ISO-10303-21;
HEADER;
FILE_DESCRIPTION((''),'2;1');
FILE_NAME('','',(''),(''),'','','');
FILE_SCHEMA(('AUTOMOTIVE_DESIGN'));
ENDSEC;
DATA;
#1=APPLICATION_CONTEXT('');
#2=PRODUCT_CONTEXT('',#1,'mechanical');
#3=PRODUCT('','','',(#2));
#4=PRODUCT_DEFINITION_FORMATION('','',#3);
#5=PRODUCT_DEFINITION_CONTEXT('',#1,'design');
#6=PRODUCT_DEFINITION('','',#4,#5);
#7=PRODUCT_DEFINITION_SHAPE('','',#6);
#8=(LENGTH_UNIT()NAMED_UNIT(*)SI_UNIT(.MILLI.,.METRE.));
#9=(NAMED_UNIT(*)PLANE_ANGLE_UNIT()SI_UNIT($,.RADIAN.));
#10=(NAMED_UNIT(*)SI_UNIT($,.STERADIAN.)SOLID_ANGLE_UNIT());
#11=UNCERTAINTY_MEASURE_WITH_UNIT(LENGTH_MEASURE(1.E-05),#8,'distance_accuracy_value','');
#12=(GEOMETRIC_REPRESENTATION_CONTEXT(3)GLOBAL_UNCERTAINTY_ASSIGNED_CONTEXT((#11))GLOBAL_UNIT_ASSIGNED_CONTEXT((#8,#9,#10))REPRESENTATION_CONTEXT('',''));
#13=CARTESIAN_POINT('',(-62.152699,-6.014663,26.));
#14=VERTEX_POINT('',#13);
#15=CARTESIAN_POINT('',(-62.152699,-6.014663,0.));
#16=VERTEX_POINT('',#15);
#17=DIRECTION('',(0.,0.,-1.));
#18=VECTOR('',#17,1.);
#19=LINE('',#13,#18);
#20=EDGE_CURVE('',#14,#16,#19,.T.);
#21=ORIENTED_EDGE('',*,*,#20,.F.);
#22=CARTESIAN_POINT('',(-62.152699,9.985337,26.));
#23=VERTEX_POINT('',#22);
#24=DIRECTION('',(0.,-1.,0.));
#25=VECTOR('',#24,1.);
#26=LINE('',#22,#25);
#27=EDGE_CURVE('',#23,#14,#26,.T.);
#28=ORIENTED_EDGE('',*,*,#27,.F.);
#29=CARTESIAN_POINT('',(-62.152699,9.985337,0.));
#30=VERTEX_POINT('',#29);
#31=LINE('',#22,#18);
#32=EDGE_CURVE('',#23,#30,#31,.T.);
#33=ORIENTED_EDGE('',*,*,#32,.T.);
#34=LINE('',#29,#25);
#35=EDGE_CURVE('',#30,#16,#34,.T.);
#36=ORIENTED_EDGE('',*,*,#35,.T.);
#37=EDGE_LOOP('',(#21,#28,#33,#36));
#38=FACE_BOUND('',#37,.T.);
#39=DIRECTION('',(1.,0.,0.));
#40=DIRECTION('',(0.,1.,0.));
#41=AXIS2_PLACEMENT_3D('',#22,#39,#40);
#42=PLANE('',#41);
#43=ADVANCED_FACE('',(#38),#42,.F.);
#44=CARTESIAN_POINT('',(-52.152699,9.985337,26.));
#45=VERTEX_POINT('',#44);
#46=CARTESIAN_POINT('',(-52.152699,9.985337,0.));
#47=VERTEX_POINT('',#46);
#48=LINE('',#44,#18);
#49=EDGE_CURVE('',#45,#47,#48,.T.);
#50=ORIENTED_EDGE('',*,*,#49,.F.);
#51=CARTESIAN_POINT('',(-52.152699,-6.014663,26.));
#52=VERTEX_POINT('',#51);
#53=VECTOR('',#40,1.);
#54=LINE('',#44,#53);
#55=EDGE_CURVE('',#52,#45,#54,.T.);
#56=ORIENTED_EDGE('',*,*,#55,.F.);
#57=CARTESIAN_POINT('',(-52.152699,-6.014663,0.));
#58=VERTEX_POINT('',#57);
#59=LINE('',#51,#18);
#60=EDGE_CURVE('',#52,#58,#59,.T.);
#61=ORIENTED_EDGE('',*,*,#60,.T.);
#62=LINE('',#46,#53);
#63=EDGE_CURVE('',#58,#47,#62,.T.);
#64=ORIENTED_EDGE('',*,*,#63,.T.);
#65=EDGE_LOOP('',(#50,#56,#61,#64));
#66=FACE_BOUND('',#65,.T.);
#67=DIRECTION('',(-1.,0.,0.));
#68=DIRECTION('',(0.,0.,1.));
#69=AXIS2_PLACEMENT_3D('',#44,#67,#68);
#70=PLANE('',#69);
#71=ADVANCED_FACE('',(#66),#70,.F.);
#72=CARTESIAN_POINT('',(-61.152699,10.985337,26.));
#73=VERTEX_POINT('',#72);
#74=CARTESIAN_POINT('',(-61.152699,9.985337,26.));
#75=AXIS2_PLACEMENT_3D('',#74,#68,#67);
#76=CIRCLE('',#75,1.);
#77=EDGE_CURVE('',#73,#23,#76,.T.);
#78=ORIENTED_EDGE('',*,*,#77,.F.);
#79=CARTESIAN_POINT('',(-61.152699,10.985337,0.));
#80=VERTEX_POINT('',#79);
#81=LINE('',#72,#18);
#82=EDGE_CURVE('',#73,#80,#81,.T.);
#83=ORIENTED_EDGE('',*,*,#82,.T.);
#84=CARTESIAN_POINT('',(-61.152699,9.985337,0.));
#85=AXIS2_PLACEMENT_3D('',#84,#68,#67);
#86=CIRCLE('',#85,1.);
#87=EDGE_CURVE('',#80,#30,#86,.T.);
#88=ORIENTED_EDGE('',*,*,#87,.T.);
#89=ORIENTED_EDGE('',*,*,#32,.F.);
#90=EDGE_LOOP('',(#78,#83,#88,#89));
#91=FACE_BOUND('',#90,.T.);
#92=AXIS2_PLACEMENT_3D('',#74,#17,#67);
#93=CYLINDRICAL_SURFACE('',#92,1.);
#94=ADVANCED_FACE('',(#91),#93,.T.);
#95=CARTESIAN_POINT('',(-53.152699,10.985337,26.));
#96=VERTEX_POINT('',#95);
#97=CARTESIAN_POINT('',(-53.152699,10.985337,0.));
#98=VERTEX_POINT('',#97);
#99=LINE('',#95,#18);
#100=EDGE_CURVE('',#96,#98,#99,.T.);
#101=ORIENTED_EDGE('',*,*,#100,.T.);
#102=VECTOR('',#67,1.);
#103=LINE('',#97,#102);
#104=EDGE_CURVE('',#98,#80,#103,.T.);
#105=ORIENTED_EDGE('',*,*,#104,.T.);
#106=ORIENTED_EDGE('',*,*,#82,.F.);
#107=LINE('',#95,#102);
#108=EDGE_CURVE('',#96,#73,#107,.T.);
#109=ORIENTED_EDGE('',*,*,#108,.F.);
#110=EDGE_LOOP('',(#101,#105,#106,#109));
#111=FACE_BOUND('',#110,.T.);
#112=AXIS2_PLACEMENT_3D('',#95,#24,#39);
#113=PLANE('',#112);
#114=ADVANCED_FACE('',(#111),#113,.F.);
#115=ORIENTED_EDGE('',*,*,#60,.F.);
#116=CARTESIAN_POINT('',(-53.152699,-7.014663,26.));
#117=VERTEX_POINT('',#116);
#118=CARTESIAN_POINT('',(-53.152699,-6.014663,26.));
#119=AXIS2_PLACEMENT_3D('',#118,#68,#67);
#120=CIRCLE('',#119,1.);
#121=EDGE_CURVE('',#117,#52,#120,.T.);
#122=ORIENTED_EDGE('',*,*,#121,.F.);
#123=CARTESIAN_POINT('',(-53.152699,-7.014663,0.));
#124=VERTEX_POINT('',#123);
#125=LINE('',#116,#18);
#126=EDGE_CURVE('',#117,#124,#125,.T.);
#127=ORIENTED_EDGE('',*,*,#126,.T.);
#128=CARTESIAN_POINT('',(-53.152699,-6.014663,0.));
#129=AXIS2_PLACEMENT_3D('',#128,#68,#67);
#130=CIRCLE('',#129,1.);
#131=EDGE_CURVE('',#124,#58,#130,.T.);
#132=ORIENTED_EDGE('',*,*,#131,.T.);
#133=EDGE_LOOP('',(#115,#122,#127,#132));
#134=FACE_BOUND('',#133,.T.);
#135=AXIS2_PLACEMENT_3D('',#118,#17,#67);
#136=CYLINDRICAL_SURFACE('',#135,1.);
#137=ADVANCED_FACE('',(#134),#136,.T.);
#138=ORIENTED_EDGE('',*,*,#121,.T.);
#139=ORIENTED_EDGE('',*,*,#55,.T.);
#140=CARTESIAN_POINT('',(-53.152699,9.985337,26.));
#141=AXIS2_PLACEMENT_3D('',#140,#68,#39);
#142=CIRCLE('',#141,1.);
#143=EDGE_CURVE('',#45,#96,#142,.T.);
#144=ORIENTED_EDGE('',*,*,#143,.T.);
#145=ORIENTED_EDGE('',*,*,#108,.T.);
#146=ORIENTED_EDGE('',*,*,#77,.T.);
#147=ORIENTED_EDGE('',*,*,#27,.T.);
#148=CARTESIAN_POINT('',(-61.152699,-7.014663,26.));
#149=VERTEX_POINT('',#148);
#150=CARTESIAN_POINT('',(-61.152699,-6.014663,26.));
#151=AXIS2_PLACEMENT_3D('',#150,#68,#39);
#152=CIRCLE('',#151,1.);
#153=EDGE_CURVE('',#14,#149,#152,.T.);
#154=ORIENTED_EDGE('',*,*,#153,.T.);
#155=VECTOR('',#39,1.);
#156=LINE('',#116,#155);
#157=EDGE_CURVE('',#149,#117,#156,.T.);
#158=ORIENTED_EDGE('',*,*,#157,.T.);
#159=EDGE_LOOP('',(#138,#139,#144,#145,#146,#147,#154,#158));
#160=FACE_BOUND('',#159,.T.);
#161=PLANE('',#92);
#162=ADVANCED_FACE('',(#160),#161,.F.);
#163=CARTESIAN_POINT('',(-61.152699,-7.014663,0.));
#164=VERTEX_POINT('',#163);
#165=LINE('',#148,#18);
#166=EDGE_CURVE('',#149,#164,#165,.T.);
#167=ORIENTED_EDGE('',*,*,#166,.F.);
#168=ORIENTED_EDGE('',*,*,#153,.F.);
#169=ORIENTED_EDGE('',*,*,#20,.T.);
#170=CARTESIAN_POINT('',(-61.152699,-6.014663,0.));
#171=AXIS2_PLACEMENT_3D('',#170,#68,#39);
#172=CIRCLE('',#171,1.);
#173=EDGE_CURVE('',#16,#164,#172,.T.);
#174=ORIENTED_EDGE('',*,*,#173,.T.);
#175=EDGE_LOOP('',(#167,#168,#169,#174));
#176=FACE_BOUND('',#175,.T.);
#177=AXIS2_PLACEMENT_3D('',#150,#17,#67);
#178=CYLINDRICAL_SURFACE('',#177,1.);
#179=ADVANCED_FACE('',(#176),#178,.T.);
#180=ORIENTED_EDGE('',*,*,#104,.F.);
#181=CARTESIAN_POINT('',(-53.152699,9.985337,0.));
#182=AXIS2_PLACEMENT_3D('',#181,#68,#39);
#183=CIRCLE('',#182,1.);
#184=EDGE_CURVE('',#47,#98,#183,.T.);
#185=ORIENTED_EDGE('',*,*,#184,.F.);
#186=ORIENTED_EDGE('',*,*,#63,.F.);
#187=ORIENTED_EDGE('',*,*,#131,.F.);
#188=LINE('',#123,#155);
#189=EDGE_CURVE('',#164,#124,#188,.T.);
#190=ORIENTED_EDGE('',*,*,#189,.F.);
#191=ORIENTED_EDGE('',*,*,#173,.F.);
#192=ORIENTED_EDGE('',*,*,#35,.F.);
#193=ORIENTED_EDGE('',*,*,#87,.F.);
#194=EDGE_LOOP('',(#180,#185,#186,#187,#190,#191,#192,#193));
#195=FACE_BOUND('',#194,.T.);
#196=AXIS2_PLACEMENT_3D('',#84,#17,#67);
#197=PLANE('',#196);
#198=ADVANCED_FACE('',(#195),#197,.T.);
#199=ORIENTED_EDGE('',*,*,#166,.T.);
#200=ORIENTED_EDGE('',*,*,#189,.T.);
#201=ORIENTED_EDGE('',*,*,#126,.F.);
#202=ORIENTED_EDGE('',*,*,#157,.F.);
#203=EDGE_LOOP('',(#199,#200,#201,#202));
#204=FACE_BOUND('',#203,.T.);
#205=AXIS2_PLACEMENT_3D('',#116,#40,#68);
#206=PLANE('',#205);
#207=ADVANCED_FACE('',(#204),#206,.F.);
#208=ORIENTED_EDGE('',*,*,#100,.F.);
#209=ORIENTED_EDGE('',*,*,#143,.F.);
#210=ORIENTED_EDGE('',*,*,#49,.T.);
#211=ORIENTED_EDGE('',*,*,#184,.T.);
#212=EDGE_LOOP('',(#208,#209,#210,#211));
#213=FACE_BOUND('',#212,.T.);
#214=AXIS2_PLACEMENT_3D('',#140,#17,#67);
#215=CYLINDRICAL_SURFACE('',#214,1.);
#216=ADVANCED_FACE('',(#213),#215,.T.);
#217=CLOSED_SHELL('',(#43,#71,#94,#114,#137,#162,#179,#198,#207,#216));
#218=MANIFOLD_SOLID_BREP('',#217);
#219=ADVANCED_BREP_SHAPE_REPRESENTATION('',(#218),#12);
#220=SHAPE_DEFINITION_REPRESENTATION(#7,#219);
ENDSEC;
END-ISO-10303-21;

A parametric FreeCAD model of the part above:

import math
import FreeCAD as App
import Part
import Sketcher

doc = App.newDocument("Part")
params = doc.addObject("Spreadsheet::Sheet", "Params")
for row, (alias, value) in enumerate([
    ("sketch1_radius", "1 mm"),
    ("sketch1_width", "8 mm"),
    ("sketch1_height", "16 mm"),
    ("pad1_length", "26 mm"),
], start=1):
    params.set(f"A{row}", alias)
    params.set(f"B{row}", "=" + value)
    params.setAlias(f"B{row}", alias)

body = doc.addObject("PartDesign::Body", "Body")

# Sketch on XY plane
sketch1 = doc.addObject("Sketcher::SketchObject", "Sketch")
body.addObject(sketch1)
sketch1.AttachmentSupport = (doc.XY_Plane, [""])
sketch1.MapMode = "FlatFace"
sketch1.addGeometry([
    Part.LineSegment(App.Vector(-53.2, 11, 0), App.Vector(-61.2, 11, 0)),  # 0
    Part.ArcOfCircle(Part.Circle(App.Vector(-61.2, 10, 0), App.Vector(0, 0, 1), 1), math.radians(90), math.radians(180)),  # 1
    Part.LineSegment(App.Vector(-62.2, 10, 0), App.Vector(-62.2, -6, 0)),  # 2
    Part.ArcOfCircle(Part.Circle(App.Vector(-61.2, -6, 0), App.Vector(0, 0, 1), 1), math.radians(-180), math.radians(-90)),  # 3
    Part.LineSegment(App.Vector(-61.2, -7, 0), App.Vector(-53.2, -7, 0)),  # 4
    Part.ArcOfCircle(Part.Circle(App.Vector(-53.2, -6, 0), App.Vector(0, 0, 1), 1), math.radians(-90), math.radians(0)),  # 5
    Part.LineSegment(App.Vector(-52.2, -6, 0), App.Vector(-52.2, 10, 0)),  # 6
    Part.ArcOfCircle(Part.Circle(App.Vector(-53.2, 10, 0), App.Vector(0, 0, 1), 1), math.radians(0), math.radians(90)),  # 7
], False)
sketch1.addConstraint([
    Sketcher.Constraint("Tangent", 0, 2, 1, 1),
    Sketcher.Constraint("Tangent", 1, 2, 2, 1),
    Sketcher.Constraint("Tangent", 2, 2, 3, 1),
    Sketcher.Constraint("Tangent", 3, 2, 4, 1),
    Sketcher.Constraint("Tangent", 4, 2, 5, 1),
    Sketcher.Constraint("Tangent", 5, 2, 6, 1),
    Sketcher.Constraint("Tangent", 6, 2, 7, 1),
    Sketcher.Constraint("Tangent", 7, 2, 0, 1),
    Sketcher.Constraint("Horizontal", 0),
    Sketcher.Constraint("Vertical", 2),
    Sketcher.Constraint("Horizontal", 4),
    Sketcher.Constraint("Vertical", 6),
    Sketcher.Constraint("Equal", 1, 3),
    Sketcher.Constraint("Equal", 3, 5),
    Sketcher.Constraint("Equal", 5, 7),
    Sketcher.Constraint("Radius", 1, 1.0),
    Sketcher.Constraint("DistanceX", 0, 2, 0, 1, 8.0),
    Sketcher.Constraint("DistanceY", 2, 2, 2, 1, 16.0),
    Sketcher.Constraint("DistanceX", 1, 3, -1, 1, 61.152699),
    Sketcher.Constraint("DistanceY", -1, 1, 1, 3, 9.985337),
])
sketch1.setExpression("Constraints[15]", "Params.sketch1_radius")
sketch1.setExpression("Constraints[16]", "Params.sketch1_width")
sketch1.setExpression("Constraints[17]", "Params.sketch1_height")
pad1 = doc.addObject("PartDesign::Pad", "Pad")
body.addObject(pad1)
pad1.Profile = sketch1
pad1.setExpression("Length", "Params.pad1_length")

doc.recompute()
